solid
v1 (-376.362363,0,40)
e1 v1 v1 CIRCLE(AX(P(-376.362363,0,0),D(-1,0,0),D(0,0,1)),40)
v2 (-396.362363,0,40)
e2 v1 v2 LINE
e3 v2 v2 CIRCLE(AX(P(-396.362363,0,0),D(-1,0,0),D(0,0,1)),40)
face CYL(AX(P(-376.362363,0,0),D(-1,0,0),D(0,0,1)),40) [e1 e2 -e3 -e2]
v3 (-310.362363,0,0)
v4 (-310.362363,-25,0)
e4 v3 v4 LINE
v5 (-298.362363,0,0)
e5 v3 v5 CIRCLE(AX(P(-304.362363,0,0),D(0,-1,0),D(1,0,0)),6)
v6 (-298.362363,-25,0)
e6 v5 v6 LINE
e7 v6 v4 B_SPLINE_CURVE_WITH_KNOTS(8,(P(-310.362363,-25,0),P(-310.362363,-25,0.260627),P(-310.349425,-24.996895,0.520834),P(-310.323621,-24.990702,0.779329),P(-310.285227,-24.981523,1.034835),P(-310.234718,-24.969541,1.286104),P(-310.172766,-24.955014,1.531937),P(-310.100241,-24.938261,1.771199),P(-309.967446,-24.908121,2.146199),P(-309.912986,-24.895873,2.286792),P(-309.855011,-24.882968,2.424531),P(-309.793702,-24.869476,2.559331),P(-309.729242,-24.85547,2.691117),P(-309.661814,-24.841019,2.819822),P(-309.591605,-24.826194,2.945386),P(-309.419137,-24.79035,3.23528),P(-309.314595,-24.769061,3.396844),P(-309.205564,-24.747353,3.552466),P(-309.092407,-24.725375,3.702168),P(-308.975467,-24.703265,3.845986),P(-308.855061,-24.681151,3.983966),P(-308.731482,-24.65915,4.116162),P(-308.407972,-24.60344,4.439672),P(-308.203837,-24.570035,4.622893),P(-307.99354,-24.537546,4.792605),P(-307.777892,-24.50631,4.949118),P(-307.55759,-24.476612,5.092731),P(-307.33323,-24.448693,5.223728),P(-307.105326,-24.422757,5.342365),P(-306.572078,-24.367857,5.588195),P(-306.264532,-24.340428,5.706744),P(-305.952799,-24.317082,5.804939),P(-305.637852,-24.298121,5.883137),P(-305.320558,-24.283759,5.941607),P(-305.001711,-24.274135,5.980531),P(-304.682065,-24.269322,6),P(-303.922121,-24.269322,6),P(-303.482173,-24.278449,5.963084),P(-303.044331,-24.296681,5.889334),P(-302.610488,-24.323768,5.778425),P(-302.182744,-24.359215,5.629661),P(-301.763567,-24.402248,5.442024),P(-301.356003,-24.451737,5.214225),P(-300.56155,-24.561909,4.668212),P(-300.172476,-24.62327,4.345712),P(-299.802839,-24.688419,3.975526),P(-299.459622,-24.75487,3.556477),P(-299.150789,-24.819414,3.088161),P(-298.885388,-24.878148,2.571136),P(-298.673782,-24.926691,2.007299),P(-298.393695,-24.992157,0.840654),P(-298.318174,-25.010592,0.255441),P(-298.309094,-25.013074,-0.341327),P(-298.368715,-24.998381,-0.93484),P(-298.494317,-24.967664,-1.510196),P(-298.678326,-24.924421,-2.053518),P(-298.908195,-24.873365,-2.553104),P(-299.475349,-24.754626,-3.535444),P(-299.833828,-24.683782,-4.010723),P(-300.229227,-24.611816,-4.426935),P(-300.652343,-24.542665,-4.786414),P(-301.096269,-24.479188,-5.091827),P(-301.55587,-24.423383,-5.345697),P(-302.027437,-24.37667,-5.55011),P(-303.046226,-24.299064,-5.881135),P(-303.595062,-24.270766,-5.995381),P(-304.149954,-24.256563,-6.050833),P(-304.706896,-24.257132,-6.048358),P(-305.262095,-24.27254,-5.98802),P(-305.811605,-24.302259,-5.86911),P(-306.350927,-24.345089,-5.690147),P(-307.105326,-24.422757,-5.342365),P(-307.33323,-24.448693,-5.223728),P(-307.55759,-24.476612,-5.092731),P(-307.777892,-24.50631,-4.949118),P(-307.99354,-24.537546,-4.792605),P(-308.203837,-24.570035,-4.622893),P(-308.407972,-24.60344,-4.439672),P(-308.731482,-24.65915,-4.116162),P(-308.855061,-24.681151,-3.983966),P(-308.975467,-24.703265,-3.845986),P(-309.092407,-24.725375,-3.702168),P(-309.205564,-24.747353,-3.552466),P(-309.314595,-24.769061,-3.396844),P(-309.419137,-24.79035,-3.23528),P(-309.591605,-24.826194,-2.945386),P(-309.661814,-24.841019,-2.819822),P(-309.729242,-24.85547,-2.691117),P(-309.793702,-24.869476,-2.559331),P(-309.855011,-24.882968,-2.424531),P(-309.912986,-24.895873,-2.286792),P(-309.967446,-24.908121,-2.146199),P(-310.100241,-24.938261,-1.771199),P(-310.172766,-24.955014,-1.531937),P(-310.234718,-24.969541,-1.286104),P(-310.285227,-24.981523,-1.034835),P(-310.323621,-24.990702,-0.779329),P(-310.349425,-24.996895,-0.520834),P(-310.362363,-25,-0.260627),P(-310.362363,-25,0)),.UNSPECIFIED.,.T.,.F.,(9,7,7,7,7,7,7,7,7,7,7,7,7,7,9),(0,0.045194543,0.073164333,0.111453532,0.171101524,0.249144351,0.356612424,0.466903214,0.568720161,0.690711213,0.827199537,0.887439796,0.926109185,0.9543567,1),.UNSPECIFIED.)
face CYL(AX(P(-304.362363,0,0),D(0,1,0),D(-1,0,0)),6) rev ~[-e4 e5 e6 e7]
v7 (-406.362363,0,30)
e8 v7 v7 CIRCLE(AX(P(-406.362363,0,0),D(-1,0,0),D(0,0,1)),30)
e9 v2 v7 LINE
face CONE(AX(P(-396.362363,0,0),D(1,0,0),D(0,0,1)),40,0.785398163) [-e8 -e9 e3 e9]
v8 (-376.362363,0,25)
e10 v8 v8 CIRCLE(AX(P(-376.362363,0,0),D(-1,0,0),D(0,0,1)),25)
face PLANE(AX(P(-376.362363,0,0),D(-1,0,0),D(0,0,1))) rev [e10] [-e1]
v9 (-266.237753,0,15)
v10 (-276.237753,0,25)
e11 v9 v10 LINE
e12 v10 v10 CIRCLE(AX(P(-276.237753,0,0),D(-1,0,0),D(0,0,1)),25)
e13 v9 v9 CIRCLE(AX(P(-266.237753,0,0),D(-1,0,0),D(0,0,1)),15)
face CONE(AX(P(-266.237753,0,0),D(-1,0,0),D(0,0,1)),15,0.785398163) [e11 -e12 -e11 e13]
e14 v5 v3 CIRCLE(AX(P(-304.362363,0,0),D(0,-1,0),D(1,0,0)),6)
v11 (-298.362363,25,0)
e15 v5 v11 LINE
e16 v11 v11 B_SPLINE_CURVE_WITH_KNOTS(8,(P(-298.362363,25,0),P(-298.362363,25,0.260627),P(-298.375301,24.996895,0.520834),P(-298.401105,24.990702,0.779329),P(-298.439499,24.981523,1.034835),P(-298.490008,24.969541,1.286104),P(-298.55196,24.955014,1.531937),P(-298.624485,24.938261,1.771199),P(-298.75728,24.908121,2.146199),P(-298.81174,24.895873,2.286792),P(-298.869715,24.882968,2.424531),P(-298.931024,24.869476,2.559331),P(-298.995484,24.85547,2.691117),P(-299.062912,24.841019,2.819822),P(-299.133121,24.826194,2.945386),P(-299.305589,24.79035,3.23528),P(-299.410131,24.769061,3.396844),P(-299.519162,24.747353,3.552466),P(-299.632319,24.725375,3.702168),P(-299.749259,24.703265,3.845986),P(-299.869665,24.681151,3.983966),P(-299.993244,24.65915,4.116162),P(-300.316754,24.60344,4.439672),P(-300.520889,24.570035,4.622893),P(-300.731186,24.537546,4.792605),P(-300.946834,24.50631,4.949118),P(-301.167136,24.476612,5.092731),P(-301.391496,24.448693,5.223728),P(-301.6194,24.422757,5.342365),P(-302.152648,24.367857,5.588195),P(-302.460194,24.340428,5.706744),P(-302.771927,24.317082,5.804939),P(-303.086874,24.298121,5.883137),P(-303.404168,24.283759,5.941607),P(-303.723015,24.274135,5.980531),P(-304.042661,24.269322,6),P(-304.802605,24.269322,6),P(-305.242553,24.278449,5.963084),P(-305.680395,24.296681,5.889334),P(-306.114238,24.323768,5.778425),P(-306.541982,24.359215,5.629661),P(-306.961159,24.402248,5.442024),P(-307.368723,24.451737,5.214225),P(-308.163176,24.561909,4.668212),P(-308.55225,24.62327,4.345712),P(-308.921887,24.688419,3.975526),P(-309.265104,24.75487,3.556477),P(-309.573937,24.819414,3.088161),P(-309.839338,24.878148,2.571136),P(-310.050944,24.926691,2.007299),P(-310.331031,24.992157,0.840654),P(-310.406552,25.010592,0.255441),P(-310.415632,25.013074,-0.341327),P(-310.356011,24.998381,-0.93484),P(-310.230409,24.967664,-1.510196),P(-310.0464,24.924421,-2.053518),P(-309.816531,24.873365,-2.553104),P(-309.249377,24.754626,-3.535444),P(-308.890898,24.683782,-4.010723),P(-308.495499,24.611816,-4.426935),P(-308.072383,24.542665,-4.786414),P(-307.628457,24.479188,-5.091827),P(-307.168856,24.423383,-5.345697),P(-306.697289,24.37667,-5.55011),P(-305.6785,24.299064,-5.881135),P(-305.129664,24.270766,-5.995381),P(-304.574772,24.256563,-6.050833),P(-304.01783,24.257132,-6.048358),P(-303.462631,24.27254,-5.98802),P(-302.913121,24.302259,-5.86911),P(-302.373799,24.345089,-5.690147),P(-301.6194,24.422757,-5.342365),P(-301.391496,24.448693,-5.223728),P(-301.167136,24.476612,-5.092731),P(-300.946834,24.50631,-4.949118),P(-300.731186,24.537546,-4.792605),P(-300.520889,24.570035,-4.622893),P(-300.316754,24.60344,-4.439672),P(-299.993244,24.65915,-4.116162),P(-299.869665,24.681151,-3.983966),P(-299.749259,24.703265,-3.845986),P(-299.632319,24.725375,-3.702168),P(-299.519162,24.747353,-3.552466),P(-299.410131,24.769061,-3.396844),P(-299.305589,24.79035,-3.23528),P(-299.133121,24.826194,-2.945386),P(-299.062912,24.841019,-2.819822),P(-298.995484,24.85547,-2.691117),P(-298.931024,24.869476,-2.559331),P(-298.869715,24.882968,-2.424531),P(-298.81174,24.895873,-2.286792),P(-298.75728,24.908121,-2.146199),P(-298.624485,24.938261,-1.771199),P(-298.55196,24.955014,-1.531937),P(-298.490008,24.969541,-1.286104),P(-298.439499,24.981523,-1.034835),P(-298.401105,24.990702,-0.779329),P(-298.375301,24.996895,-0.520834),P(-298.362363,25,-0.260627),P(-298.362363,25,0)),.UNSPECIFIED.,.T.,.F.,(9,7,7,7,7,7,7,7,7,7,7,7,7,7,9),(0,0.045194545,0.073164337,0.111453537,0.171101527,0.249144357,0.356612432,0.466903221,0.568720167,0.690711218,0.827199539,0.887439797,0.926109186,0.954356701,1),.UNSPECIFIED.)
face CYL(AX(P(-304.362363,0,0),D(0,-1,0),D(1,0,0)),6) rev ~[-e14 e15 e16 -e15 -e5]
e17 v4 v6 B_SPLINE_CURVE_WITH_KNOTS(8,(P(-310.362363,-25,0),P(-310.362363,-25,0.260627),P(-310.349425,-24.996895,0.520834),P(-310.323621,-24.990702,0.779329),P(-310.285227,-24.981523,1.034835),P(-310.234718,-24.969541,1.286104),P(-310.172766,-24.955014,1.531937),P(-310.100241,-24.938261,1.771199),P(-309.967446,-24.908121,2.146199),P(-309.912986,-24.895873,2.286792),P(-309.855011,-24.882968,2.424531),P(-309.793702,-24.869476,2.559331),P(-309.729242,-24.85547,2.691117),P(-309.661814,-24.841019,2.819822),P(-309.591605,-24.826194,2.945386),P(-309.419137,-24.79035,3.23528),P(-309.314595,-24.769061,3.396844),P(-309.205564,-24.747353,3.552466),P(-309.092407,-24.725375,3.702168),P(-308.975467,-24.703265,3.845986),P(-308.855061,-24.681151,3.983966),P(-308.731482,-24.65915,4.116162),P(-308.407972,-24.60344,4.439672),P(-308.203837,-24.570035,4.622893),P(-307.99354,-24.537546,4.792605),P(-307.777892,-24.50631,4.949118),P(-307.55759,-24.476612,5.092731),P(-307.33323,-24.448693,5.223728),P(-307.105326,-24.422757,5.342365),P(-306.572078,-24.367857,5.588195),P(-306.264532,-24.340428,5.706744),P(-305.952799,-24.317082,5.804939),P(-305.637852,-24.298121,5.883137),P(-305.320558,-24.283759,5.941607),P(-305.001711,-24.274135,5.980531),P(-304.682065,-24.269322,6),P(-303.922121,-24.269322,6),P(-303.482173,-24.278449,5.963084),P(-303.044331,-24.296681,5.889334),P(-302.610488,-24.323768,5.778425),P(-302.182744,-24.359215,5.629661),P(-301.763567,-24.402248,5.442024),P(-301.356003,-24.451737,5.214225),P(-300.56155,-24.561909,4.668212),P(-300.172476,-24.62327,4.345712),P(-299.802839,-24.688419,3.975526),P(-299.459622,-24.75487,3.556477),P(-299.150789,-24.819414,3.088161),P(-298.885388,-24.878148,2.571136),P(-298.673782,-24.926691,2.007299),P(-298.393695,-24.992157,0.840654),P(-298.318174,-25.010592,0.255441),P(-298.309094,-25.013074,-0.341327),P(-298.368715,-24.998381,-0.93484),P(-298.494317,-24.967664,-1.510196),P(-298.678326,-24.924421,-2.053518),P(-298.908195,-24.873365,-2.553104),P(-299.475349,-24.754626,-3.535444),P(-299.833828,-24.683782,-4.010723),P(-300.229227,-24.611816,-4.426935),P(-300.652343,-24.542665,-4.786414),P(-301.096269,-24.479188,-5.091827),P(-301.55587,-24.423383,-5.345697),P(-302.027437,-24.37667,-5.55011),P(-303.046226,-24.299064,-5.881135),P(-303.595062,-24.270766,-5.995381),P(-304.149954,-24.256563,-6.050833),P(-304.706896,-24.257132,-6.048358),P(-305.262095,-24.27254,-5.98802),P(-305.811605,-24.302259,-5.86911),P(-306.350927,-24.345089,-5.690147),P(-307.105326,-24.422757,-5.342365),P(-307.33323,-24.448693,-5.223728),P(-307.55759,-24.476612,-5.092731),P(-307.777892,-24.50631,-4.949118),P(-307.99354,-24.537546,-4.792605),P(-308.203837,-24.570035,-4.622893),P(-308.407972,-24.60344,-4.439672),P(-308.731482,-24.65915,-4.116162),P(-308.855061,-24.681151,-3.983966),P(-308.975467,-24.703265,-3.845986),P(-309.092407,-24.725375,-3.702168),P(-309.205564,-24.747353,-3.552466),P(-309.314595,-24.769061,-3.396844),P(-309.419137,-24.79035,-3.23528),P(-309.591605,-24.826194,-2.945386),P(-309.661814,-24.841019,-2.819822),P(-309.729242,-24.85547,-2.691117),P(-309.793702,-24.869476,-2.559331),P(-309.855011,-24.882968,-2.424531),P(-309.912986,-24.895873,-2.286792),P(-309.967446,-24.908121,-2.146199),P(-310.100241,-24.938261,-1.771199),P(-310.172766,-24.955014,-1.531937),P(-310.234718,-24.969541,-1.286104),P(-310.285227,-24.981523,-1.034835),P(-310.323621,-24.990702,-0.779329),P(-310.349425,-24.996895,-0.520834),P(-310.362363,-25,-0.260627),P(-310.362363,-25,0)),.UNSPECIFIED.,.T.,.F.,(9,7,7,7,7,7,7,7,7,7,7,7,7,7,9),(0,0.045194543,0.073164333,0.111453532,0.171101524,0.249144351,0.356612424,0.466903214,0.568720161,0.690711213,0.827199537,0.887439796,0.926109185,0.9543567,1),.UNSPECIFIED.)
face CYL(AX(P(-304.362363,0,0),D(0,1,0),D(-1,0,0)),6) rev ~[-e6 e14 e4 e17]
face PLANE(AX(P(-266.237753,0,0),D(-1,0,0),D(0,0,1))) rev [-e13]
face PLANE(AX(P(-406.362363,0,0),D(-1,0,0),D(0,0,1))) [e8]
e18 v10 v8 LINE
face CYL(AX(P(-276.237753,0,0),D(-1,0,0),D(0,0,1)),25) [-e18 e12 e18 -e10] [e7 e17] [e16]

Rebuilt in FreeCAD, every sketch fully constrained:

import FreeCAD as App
import Part
import Sketcher

doc = App.newDocument("Part")
params = doc.addObject("Spreadsheet::Sheet", "Params")
for row, (alias, value) in enumerate([
    ("sketch1_width", "20 mm"),
    ("sketch1_height", "30 mm"),
    ("sketch1_height2", "15 mm"),
    ("revolution_angle", "360 deg"),
    ("sketch2_diameter", "12 mm"),
    ("sketch3_diameter", "12 mm"),
    ("sketch4_diameter", "12 mm"),
], start=1):
    params.set(f"A{row}", alias)
    params.set(f"B{row}", "=" + value)
    params.setAlias(f"B{row}", alias)

body = doc.addObject("PartDesign::Body", "Body")

# Sketch on XZ plane
sketch1 = body.newObject("Sketcher::SketchObject", "Sketch")
sketch1.AttachmentSupport = (doc.getObject("XZ_Plane"), [""])
sketch1.MapMode = "FlatFace"
sketch1.addGeometry([
    Part.LineSegment(App.Vector(-406, 30, 0), App.Vector(-406, 0, 0)),  # 0
    Part.LineSegment(App.Vector(-406, 0, 0), App.Vector(-266, 0, 0)),  # 1
    Part.LineSegment(App.Vector(-266, 0, 0), App.Vector(-266, 15, 0)),  # 2
    Part.LineSegment(App.Vector(-266, 15, 0), App.Vector(-276, 25, 0)),  # 3
    Part.LineSegment(App.Vector(-276, 25, 0), App.Vector(-376, 25, 0)),  # 4
    Part.LineSegment(App.Vector(-376, 25, 0), App.Vector(-376, 40, 0)),  # 5
    Part.LineSegment(App.Vector(-376, 40, 0), App.Vector(-396, 40, 0)),  # 6
    Part.LineSegment(App.Vector(-396, 40, 0), App.Vector(-406, 30, 0)),  # 7
], False)
sketch1.addConstraint([
    Sketcher.Constraint("Coincident", 0, 2, 1, 1),
    Sketcher.Constraint("Coincident", 1, 2, 2, 1),
    Sketcher.Constraint("Coincident", 2, 2, 3, 1),
    Sketcher.Constraint("Coincident", 3, 2, 4, 1),
    Sketcher.Constraint("Coincident", 4, 2, 5, 1),
    Sketcher.Constraint("Coincident", 5, 2, 6, 1),
    Sketcher.Constraint("Coincident", 6, 2, 7, 1),
    Sketcher.Constraint("Coincident", 7, 2, 0, 1),
    Sketcher.Constraint("Vertical", 0),
    Sketcher.Constraint("Horizontal", 1),
    Sketcher.Constraint("Vertical", 2),
    Sketcher.Constraint("Horizontal", 4),
    Sketcher.Constraint("Vertical", 5),
    Sketcher.Constraint("Horizontal", 6),
    Sketcher.Constraint("PointOnObject", 0, 2, -1),
    Sketcher.Constraint("Perpendicular", 3, 7),
    Sketcher.Constraint("Equal", 2, 5),
    Sketcher.Constraint("Equal", 3, 7),
    Sketcher.Constraint("DistanceX", 6, 2, 6, 1, 20.0),
    Sketcher.Constraint("DistanceY", 0, 2, 0, 1, 30.0),
    Sketcher.Constraint("DistanceY", 2, 1, 2, 2, 15.0),
    Sketcher.Constraint("DistanceY", -1, 1, 3, 2, 25.0),
    Sketcher.Constraint("DistanceX", 1, 1, 1, 2, 140.12461),
    Sketcher.Constraint("DistanceX", 0, 2, -1, 1, 406.362363),
])
sketch1.setExpression("Constraints[18]", "Params.sketch1_width")
sketch1.setExpression("Constraints[19]", "Params.sketch1_height")
sketch1.setExpression("Constraints[20]", "Params.sketch1_height2")
revolution = body.newObject("PartDesign::Revolution", "Revolution")
revolution.Profile = sketch1
revolution.ReferenceAxis = (sketch1, ["H_Axis"])
revolution.setExpression("Angle", "Params.revolution_angle")

# Sketch on XZ plane
sketch2 = body.newObject("Sketcher::SketchObject", "Sketch001")
sketch2.AttachmentSupport = (doc.getObject("XZ_Plane"), [""])
sketch2.MapMode = "FlatFace"
sketch2.addGeometry(Part.Circle(App.Vector(-304, 0, 0), App.Vector(0, 0, 1), 6), False)
sketch2.addConstraint([
    Sketcher.Constraint("PointOnObject", 0, 3, -1),
    Sketcher.Constraint("Diameter", 0, 12.0),
    Sketcher.Constraint("DistanceX", 0, 3, -1, 1, 304.362363),
])
sketch2.setExpression("Constraints[1]", "Params.sketch2_diameter")
pocket1 = body.newObject("PartDesign::Pocket", "Pocket")
pocket1.Profile = sketch2
pocket1.Type = "ThroughAll"

# Sketch on XZ plane
sketch3 = body.newObject("Sketcher::SketchObject", "Sketch002")
sketch3.AttachmentSupport = (doc.getObject("XZ_Plane"), [""])
sketch3.MapMode = "FlatFace"
sketch3.addGeometry(Part.Circle(App.Vector(-304, 0, 0), App.Vector(0, 0, 1), 6), False)
sketch3.addConstraint([
    Sketcher.Constraint("PointOnObject", 0, 3, -1),
    Sketcher.Constraint("Diameter", 0, 12.0),
    Sketcher.Constraint("DistanceX", 0, 3, -1, 1, 304.362363),
])
sketch3.setExpression("Constraints[1]", "Params.sketch3_diameter")
pocket2 = body.newObject("PartDesign::Pocket", "Pocket001")
pocket2.Profile = sketch3
pocket2.Type = "ThroughAll"
pocket2.Reversed = True

# Sketch on XZ plane
sketch4 = body.newObject("Sketcher::SketchObject", "Sketch003")
sketch4.AttachmentSupport = (doc.getObject("XZ_Plane"), [""])
sketch4.MapMode = "FlatFace"
sketch4.addGeometry(Part.Circle(App.Vector(-304, 0, 0), App.Vector(0, 0, 1), 6), False)
sketch4.addConstraint([
    Sketcher.Constraint("PointOnObject", 0, 3, -1),
    Sketcher.Constraint("Diameter", 0, 12.0),
    Sketcher.Constraint("DistanceX", 0, 3, -1, 1, 304.362363),
])
sketch4.setExpression("Constraints[1]", "Params.sketch4_diameter")
pocket3 = body.newObject("PartDesign::Pocket", "Pocket002")
pocket3.Profile = sketch4
pocket3.Type = "ThroughAll"
pocket3.Reversed = True

doc.recompute()
